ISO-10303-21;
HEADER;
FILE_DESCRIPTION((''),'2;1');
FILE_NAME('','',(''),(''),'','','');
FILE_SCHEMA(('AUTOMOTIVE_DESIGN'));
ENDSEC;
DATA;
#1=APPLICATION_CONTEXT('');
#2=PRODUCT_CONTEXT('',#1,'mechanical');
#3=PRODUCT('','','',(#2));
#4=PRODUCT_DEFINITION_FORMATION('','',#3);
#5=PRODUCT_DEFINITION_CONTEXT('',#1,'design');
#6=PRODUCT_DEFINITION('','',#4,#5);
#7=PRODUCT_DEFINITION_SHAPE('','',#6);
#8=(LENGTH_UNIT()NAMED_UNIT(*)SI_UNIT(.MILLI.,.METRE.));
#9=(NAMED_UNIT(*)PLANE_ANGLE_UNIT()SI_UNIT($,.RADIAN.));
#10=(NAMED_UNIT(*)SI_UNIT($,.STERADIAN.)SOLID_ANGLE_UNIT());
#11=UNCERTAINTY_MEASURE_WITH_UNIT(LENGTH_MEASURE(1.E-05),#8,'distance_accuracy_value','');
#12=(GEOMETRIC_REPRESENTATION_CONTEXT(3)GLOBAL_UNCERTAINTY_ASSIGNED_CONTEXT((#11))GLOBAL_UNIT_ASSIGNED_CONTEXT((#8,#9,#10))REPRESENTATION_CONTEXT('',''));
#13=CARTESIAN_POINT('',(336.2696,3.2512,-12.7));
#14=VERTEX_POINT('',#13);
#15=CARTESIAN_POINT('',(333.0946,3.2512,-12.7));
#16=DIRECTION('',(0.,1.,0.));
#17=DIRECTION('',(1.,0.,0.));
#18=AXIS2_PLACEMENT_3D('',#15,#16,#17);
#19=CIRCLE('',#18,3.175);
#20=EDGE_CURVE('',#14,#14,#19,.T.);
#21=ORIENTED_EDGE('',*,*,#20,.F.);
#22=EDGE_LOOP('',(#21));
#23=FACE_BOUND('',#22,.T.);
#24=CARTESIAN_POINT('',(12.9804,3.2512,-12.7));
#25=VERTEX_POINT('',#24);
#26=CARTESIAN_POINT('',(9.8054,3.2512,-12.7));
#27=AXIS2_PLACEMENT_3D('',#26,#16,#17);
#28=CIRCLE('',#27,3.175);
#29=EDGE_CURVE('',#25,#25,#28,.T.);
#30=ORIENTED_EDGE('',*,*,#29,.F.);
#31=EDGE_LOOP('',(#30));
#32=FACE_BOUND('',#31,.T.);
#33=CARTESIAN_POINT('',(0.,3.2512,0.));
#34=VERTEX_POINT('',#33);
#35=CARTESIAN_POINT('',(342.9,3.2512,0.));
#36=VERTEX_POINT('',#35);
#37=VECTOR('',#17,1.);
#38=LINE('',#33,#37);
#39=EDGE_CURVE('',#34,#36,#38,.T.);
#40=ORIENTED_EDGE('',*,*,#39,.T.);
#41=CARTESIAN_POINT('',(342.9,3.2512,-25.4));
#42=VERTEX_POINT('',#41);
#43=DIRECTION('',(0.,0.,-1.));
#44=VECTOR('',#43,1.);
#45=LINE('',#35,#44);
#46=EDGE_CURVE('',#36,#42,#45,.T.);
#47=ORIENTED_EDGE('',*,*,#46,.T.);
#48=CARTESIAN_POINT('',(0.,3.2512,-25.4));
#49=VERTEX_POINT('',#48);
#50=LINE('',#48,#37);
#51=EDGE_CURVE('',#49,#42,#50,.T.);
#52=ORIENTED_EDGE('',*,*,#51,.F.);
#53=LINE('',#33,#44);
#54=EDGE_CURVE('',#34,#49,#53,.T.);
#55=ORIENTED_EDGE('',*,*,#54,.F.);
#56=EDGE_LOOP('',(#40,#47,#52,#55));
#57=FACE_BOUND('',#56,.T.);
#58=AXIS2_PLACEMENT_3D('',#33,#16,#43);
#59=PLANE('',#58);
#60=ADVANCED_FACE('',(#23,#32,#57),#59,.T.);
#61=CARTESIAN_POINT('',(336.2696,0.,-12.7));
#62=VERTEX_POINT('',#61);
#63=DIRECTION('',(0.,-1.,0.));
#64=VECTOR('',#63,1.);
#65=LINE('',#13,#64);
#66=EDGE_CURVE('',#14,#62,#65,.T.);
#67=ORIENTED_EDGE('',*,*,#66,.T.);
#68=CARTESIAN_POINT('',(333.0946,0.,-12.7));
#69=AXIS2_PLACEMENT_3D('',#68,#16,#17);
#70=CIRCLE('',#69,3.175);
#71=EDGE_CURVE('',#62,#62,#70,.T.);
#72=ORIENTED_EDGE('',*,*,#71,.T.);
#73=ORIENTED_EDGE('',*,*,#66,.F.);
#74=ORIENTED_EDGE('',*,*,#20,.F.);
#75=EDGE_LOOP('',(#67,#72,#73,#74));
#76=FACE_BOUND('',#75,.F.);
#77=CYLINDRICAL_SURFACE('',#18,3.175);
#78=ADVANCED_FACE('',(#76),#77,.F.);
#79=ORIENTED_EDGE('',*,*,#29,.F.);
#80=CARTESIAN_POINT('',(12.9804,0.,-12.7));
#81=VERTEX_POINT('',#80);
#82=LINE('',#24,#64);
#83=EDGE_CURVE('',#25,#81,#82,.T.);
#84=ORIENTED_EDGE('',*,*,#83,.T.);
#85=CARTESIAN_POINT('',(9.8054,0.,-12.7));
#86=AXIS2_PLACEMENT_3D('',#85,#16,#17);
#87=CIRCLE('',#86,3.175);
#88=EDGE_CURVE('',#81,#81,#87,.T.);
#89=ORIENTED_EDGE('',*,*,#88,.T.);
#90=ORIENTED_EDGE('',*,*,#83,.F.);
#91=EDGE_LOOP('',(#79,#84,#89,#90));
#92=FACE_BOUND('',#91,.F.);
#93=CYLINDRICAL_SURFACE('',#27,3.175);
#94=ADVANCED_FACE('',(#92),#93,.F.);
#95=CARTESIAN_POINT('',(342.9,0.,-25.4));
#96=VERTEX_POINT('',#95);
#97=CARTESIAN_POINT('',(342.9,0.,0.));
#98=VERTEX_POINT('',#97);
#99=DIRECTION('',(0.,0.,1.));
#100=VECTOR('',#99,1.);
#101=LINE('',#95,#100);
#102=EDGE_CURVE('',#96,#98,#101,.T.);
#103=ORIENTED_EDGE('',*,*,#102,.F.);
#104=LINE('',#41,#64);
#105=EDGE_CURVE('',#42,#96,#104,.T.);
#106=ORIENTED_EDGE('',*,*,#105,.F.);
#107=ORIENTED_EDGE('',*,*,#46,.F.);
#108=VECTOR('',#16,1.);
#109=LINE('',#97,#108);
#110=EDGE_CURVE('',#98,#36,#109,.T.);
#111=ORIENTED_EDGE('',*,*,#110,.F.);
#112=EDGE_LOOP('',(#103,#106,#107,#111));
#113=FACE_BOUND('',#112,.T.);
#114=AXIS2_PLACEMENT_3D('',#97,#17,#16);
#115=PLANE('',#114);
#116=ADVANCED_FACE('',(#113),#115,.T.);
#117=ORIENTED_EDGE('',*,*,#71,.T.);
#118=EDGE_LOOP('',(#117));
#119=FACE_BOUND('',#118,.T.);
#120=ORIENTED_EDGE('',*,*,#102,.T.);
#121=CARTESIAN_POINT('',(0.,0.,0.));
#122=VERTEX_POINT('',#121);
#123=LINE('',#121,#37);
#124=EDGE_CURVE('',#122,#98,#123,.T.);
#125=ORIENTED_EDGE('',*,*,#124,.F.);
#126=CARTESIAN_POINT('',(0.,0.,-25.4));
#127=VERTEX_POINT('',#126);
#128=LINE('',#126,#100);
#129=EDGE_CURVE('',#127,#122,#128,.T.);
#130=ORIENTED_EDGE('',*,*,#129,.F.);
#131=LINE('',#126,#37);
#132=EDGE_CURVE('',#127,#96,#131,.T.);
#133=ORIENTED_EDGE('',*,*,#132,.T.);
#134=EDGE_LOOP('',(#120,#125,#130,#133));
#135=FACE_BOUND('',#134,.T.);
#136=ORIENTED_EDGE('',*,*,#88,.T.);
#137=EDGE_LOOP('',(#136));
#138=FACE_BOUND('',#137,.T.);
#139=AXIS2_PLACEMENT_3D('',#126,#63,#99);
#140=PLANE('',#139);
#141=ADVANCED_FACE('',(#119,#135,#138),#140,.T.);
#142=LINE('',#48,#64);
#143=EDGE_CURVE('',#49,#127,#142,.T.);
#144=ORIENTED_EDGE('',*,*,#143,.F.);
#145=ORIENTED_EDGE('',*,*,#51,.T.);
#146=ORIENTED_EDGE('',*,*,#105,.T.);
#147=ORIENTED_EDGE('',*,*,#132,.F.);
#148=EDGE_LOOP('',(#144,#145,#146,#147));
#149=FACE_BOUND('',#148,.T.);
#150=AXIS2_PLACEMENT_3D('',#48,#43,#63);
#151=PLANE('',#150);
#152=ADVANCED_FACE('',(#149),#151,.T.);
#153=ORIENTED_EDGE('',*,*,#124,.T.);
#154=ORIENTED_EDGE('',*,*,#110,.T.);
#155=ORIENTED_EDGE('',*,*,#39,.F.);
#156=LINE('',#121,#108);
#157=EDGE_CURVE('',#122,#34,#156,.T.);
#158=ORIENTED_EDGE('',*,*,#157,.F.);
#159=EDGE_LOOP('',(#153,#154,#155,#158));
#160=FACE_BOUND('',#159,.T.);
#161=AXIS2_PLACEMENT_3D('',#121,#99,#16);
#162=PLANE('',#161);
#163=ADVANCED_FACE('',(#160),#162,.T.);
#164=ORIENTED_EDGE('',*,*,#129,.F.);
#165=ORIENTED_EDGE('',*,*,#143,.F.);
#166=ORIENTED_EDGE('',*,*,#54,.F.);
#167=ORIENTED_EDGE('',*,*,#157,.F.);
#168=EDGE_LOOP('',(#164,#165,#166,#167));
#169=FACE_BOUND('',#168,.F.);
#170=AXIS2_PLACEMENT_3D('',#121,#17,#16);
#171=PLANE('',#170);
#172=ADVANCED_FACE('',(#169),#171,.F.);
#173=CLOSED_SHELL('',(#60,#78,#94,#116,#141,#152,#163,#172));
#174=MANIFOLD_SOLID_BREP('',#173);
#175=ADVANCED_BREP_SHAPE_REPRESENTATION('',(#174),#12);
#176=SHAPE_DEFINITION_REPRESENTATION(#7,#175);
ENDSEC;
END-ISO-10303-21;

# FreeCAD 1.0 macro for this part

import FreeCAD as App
import Part
import Sketcher
Q = App.Units.Quantity


def add_polygon(sketch, points):
    """Adds a closed chain of lines whose ends are joined by coincident constraints."""
    first, n = sketch.GeometryCount, len(points)
    for a, b in zip(points, points[1:] + points[:1]):
        sketch.addGeometry(Part.LineSegment(App.Vector(*a, 0), App.Vector(*b, 0)), False)
    for i in range(n):
        sketch.addConstraint(Sketcher.Constraint("Coincident", first + i, 2, first + (i + 1) % n, 1))

doc = App.newDocument("Part")
body = doc.addObject("PartDesign::Body", "Body")

sketch1 = body.newObject("Sketcher::SketchObject", "Sketch")
sketch1.AttachmentSupport = (doc.getObject("YZ_Plane"), [""])
sketch1.MapMode = "FlatFace"
add_polygon(sketch1, [(3.3, 0), (0, 0), (0, -25.4), (3.3, -25.4)])
sketch1.addConstraint(Sketcher.Constraint("Horizontal", 0))
sketch1.addConstraint(Sketcher.Constraint("Vertical", 1))
sketch1.addConstraint(Sketcher.Constraint("Horizontal", 2))
sketch1.addConstraint(Sketcher.Constraint("Vertical", 3))
sketch1.addConstraint(Sketcher.Constraint("Coincident", 0, 2, -1, 1))
sketch1.addConstraint(Sketcher.Constraint("DistanceY", 1, 2, 1, 1, Q("1 in")))
sketch1.addConstraint(Sketcher.Constraint("DistanceX", 0, 2, 0, 1, Q("0.128 in")))
pad1 = body.newObject("PartDesign::Pad", "Pad")
pad1.Profile = sketch1
pad1.Length = Q("13.5 in")

sketch2 = body.newObject("Sketcher::SketchObject", "Sketch001")
sketch2.AttachmentSupport = (doc.getObject("XZ_Plane"), [""])
sketch2.MapMode = "FlatFace"
sketch2.AttachmentOffset = App.Placement(App.Vector(0, 0, -0.128 * 25.4), App.Rotation())
sketch2.addGeometry(Part.Circle(App.Vector(9.8, -12.7, 0), App.Vector(0, 0, 1), 3.2), False)
sketch2.addGeometry(Part.Circle(App.Vector(333.1, -12.7, 0), App.Vector(0, 0, 1), 3.2), False)
sketch2.addConstraint(Sketcher.Constraint("Equal", 0, 1))
sketch2.addConstraint(Sketcher.Constraint("Horizontal", 0, 3, 1, 3))
sketch2.addConstraint(Sketcher.Constraint("Diameter", 0, Q("0.25 in")))
sketch2.addConstraint(Sketcher.Constraint("DistanceY", 0, 3, -1, 1, Q("0.5 in")))
sketch2.addConstraint(Sketcher.Constraint("DistanceX", -1, 1, 0, 3, Q("9.8054 mm")))
sketch2.addConstraint(Sketcher.Constraint("DistanceX", -1, 1, 1, 3, Q("333.0946 mm")))
pocket1 = body.newObject("PartDesign::Pocket", "Pocket")
pocket1.Profile = sketch2
pocket1.Length = Q("13.5 in")
pocket1.Reversed = True

doc.recompute()
